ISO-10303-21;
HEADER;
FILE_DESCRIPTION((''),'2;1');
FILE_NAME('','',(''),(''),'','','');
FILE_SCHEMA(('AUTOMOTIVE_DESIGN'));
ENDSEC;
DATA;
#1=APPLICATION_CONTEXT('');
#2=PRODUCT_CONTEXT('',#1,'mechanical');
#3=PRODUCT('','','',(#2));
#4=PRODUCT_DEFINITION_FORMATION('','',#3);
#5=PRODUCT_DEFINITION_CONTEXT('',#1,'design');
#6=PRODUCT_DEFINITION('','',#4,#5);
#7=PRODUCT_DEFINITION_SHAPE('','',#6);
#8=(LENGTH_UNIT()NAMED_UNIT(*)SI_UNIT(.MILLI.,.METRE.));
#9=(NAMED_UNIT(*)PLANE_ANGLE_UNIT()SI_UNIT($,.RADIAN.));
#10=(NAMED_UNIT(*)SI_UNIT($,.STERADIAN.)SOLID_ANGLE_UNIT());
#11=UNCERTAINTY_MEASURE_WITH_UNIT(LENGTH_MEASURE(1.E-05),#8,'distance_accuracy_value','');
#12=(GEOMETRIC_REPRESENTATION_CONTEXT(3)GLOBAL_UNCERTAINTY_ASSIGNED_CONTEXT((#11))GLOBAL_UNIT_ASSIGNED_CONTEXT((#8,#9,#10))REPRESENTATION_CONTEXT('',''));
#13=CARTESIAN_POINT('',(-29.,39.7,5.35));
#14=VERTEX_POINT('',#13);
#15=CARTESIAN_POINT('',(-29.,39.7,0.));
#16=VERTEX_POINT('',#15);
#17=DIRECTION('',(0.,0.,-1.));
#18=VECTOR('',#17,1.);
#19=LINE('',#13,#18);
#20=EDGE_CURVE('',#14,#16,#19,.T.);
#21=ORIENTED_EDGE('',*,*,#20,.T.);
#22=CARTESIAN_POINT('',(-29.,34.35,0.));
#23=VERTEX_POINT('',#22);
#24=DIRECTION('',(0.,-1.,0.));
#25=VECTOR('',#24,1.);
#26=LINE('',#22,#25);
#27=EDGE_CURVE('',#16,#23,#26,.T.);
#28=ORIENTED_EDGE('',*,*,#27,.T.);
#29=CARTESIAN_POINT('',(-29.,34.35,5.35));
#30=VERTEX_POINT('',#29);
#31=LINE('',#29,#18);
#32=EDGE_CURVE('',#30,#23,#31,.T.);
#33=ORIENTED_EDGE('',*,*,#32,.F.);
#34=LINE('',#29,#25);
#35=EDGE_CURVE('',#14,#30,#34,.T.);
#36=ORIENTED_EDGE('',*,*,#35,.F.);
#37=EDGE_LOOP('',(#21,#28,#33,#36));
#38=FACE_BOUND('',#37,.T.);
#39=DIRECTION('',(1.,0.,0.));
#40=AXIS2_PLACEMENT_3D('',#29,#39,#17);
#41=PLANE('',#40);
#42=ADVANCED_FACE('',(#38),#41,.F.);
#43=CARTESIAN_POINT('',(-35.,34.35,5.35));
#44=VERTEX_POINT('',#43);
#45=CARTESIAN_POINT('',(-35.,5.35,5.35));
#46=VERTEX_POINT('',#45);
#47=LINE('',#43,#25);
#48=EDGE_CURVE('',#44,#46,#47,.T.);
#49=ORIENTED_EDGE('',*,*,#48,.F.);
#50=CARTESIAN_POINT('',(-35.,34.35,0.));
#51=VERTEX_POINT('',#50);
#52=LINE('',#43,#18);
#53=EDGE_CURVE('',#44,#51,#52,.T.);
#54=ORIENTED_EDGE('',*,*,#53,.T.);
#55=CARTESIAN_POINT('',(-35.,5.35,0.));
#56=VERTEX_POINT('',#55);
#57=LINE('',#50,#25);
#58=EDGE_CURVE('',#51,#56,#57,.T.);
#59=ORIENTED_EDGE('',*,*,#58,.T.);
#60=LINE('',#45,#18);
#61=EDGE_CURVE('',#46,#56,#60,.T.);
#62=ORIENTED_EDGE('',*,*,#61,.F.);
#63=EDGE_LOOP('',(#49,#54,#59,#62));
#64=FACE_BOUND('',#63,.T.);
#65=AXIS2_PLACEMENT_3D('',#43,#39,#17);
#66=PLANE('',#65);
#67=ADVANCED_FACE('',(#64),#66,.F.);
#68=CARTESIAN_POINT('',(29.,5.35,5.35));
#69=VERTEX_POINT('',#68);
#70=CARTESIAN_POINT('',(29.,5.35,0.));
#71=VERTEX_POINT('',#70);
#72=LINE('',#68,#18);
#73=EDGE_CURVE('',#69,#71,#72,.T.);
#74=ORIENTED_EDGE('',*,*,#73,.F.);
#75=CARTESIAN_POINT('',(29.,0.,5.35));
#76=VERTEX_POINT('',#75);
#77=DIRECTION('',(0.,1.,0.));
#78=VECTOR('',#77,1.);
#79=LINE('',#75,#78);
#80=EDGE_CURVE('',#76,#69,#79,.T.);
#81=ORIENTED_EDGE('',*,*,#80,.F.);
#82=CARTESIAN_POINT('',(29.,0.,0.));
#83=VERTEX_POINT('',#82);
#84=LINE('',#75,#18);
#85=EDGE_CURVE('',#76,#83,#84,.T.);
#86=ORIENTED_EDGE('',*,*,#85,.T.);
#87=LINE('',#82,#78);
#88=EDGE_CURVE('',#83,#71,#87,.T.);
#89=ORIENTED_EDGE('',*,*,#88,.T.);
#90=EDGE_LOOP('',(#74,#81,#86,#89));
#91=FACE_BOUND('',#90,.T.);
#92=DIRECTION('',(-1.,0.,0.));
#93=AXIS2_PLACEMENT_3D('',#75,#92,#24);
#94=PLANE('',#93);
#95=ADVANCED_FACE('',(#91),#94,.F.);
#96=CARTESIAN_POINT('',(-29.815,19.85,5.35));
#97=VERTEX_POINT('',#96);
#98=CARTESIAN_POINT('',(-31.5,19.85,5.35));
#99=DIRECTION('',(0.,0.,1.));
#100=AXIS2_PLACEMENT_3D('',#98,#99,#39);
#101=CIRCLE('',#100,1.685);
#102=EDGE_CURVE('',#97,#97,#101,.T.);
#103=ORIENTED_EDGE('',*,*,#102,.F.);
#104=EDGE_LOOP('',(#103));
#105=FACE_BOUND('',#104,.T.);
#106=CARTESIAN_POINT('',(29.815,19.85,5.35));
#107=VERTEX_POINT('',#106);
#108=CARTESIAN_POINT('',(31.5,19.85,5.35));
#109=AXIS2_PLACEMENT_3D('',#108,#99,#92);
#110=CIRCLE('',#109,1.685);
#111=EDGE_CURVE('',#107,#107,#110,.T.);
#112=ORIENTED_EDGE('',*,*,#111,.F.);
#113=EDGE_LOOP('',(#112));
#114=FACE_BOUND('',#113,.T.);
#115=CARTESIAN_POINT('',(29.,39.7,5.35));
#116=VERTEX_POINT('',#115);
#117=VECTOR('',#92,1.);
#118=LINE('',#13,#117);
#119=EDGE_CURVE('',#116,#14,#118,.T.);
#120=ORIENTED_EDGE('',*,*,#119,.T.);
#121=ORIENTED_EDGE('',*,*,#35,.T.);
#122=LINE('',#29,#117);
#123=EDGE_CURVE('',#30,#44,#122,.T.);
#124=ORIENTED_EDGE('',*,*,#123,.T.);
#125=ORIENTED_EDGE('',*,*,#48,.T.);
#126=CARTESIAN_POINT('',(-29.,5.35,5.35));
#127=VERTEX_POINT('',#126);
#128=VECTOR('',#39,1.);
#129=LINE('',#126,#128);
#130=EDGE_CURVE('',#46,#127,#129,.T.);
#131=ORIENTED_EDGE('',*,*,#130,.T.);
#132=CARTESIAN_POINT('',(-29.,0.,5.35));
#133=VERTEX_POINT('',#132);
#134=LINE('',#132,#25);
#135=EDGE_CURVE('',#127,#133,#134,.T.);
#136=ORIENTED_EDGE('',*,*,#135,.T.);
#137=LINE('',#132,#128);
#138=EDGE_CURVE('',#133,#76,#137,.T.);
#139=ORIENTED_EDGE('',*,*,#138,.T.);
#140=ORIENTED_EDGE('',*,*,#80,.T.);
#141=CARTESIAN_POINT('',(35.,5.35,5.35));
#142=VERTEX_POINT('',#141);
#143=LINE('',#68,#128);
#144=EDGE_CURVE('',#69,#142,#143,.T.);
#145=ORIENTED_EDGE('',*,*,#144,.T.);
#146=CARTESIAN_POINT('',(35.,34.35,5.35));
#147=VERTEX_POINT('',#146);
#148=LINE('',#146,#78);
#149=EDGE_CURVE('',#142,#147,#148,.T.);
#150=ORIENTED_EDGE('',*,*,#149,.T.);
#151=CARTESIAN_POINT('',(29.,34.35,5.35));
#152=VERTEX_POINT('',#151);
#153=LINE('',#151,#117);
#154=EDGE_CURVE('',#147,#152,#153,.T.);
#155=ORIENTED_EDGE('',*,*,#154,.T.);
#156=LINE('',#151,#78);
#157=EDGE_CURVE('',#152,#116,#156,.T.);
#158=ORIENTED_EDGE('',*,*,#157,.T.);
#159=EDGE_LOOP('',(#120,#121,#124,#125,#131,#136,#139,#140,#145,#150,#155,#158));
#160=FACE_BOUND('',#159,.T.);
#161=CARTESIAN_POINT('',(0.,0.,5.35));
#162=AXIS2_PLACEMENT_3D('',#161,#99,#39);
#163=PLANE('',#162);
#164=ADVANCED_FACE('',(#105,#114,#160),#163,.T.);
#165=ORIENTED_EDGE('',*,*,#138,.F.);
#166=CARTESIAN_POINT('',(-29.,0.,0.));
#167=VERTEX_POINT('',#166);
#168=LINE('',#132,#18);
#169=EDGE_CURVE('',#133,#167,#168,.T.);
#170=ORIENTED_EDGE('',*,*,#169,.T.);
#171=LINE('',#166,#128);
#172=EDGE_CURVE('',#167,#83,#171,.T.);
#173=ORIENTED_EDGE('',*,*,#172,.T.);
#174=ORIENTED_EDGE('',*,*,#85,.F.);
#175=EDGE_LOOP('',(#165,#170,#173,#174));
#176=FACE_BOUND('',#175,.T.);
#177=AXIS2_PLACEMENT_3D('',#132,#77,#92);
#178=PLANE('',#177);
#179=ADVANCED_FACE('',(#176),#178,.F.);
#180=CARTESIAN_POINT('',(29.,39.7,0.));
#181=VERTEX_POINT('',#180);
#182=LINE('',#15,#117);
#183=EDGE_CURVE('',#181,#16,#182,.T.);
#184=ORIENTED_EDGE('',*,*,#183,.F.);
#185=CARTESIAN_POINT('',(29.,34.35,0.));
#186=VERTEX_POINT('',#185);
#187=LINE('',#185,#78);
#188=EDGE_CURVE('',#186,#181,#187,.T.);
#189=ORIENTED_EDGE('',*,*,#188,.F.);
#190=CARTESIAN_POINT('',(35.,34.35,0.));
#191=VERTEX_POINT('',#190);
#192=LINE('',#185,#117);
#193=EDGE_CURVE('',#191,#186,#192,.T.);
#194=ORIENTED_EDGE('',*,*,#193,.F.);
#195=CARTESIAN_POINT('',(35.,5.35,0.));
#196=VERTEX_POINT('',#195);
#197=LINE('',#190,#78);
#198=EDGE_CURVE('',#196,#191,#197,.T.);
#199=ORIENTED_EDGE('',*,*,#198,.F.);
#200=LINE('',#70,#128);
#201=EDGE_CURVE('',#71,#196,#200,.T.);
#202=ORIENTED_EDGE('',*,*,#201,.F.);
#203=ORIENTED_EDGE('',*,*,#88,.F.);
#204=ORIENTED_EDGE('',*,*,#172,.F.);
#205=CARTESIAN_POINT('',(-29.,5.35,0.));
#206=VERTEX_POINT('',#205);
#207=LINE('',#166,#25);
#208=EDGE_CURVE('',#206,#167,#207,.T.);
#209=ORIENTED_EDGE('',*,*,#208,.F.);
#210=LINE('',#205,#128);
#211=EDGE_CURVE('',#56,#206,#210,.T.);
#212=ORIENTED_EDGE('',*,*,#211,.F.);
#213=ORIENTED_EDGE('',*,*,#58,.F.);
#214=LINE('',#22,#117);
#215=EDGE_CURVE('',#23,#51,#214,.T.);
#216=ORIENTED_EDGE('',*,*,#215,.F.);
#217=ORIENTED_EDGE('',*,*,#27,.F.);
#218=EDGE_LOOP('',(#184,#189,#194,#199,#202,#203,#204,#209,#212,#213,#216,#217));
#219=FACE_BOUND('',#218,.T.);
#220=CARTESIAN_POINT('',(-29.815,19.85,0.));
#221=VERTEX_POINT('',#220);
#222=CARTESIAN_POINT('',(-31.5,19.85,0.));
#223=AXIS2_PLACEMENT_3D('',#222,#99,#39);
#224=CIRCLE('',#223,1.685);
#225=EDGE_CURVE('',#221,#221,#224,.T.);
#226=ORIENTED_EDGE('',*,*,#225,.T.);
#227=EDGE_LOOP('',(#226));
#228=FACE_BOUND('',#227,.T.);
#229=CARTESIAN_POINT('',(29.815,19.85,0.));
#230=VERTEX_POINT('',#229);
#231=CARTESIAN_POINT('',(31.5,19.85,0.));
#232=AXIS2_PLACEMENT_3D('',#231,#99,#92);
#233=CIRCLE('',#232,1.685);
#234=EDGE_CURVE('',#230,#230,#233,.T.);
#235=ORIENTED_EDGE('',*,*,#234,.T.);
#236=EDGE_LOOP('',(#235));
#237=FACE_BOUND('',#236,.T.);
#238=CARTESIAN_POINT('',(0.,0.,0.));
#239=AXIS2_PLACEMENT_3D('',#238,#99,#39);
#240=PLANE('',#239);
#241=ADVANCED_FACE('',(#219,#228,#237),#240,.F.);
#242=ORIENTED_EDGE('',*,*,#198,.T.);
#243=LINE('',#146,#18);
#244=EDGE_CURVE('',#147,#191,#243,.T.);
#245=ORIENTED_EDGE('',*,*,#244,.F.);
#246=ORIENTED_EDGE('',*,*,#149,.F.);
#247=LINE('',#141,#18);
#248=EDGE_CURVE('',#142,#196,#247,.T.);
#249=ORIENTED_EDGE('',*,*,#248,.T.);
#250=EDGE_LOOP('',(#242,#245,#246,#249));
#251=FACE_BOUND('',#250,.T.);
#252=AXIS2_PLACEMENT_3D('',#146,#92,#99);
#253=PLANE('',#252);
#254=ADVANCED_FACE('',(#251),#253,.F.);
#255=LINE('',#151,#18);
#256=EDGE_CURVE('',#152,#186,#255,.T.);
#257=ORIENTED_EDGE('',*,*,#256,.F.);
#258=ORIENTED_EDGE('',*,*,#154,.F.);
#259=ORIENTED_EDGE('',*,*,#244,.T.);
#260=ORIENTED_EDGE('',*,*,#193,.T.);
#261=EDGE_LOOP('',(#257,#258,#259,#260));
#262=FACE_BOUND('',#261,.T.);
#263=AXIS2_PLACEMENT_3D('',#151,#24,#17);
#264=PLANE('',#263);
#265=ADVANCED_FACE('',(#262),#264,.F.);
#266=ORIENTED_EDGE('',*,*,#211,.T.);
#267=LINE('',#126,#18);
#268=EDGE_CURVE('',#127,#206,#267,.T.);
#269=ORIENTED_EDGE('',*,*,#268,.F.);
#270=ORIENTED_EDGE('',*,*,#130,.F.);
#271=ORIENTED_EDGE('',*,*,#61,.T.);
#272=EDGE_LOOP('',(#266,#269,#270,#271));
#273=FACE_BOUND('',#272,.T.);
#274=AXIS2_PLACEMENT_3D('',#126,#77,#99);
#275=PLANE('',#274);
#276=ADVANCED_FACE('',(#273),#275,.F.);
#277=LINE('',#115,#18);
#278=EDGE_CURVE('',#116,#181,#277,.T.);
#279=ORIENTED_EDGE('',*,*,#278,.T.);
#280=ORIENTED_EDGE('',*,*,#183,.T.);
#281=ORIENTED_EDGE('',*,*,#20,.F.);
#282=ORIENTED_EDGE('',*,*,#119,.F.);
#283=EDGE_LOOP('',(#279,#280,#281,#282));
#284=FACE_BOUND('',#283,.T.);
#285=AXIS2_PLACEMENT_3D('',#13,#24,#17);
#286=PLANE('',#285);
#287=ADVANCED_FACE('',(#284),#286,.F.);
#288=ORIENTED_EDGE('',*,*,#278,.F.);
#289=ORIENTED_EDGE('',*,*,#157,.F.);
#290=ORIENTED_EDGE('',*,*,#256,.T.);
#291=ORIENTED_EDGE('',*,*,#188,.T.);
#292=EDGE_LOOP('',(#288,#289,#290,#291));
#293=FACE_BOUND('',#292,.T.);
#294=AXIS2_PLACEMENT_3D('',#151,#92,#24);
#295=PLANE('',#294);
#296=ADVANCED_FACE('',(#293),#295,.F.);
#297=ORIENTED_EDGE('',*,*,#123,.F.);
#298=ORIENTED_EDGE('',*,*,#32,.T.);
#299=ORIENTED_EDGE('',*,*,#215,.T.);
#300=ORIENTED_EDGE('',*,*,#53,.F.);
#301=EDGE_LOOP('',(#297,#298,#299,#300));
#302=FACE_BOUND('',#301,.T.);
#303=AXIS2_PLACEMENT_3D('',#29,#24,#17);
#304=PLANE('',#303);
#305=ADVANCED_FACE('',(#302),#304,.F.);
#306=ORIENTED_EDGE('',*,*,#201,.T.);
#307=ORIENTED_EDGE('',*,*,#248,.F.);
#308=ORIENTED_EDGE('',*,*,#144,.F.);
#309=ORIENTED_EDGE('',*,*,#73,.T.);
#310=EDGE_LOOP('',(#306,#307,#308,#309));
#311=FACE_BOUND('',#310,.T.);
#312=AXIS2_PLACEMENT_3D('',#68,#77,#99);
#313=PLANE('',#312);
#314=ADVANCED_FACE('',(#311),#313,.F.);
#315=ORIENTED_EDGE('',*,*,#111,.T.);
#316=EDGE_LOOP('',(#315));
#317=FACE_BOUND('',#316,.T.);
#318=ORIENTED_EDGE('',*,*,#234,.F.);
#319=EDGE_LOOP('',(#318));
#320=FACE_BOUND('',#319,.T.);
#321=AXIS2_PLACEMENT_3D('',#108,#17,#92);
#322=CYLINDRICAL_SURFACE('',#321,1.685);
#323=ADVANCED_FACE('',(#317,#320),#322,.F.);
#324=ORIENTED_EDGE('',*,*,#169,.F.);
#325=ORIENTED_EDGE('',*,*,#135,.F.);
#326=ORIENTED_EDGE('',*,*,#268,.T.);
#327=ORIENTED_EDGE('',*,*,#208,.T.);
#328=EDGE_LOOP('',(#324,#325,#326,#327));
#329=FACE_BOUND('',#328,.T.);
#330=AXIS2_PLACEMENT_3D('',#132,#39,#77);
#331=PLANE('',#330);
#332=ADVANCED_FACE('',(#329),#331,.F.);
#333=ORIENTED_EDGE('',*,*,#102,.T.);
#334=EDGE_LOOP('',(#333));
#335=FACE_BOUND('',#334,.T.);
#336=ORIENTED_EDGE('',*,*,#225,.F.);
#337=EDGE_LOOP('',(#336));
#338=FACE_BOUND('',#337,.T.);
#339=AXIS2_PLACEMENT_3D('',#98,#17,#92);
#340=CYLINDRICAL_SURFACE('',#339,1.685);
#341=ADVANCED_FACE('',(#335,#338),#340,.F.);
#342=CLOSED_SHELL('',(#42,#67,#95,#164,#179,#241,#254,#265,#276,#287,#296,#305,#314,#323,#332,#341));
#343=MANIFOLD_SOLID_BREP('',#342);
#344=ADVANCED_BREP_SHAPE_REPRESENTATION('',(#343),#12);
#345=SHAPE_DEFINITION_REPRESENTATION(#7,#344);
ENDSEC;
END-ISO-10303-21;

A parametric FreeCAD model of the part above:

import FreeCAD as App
import Part
import Sketcher

V = App.Vector


def add_polygon(sketch, points):
    """Adds a closed chain of lines whose ends are joined by coincident constraints."""
    first, n = sketch.GeometryCount, len(points)
    for a, b in zip(points, points[1:] + points[:1]):
        sketch.addGeometry(Part.LineSegment(App.Vector(*a, 0), App.Vector(*b, 0)), False)
    for i in range(n):
        sketch.addConstraint(Sketcher.Constraint("Coincident", first + i, 2, first + (i + 1) % n, 1))

doc = App.newDocument("Part")
body = doc.addObject("PartDesign::Body", "Body")

sketch1 = body.newObject("Sketcher::SketchObject", "Sketch")
sketch1.AttachmentSupport = (doc.getObject("XY_Plane"), [""])
sketch1.MapMode = "FlatFace"
add_polygon(sketch1, [(-29, 0), (29, 0), (29, 5.3), (35, 5.3), (35, 34.4), (29, 34.4), (29, 39.7), (-29, 39.7), (-29, 34.4), (-35, 34.4), (-35, 5.3), (-29, 5.3)])
sketch1.addGeometry(Part.Circle(V(-31.5, 19.9, 0), V(0, 0, 1), 1.7), False)
sketch1.addGeometry(Part.Circle(V(31.5, 19.9, 0), V(0, 0, 1), 1.7), False)
sketch1.addConstraint([
    Sketcher.Constraint("Horizontal", 0),
    Sketcher.Constraint("Vertical", 1),
    Sketcher.Constraint("Horizontal", 2),
    Sketcher.Constraint("Vertical", 3),
    Sketcher.Constraint("Horizontal", 4),
    Sketcher.Constraint("Vertical", 5),
    Sketcher.Constraint("Horizontal", 6),
    Sketcher.Constraint("Vertical", 7),
    Sketcher.Constraint("Horizontal", 8),
    Sketcher.Constraint("Vertical", 9),
    Sketcher.Constraint("Horizontal", 10),
    Sketcher.Constraint("Vertical", 11),
    Sketcher.Constraint("Equal", 12, 13),
    Sketcher.Constraint("Symmetric", 0, 2, 11, 2, -1, 1),
    Sketcher.Constraint("Symmetric", 12, 3, 13, 3, -2),
    Sketcher.Constraint("Symmetric", 4, 2, 7, 2, -2),
    Sketcher.Constraint("Symmetric", 2, 2, 9, 2, -2),
    Sketcher.Constraint("Vertical", 1, 2, 4, 2),
    Sketcher.Constraint("Equal", 1, 5),
    Sketcher.Constraint("Diameter", 12, 3.37),
    Sketcher.Constraint("DistanceX", 0, 1, 0, 2, 58.0),
    Sketcher.Constraint("DistanceX", 2, 1, 2, 2, 6.0),
    Sketcher.Constraint("DistanceY", 3, 1, 3, 2, 29.0),
    Sketcher.Constraint("DistanceX", 12, 3, 13, 3, 63.0),
    Sketcher.Constraint("DistanceY", 1, 1, 1, 2, 5.35),
    Sketcher.Constraint("DistanceY", 1, 2, 13, 3, 14.5),
])
pad1 = body.newObject("PartDesign::Pad", "Pad")
pad1.Profile = sketch1
pad1.Length = 5.35

doc.recompute()
